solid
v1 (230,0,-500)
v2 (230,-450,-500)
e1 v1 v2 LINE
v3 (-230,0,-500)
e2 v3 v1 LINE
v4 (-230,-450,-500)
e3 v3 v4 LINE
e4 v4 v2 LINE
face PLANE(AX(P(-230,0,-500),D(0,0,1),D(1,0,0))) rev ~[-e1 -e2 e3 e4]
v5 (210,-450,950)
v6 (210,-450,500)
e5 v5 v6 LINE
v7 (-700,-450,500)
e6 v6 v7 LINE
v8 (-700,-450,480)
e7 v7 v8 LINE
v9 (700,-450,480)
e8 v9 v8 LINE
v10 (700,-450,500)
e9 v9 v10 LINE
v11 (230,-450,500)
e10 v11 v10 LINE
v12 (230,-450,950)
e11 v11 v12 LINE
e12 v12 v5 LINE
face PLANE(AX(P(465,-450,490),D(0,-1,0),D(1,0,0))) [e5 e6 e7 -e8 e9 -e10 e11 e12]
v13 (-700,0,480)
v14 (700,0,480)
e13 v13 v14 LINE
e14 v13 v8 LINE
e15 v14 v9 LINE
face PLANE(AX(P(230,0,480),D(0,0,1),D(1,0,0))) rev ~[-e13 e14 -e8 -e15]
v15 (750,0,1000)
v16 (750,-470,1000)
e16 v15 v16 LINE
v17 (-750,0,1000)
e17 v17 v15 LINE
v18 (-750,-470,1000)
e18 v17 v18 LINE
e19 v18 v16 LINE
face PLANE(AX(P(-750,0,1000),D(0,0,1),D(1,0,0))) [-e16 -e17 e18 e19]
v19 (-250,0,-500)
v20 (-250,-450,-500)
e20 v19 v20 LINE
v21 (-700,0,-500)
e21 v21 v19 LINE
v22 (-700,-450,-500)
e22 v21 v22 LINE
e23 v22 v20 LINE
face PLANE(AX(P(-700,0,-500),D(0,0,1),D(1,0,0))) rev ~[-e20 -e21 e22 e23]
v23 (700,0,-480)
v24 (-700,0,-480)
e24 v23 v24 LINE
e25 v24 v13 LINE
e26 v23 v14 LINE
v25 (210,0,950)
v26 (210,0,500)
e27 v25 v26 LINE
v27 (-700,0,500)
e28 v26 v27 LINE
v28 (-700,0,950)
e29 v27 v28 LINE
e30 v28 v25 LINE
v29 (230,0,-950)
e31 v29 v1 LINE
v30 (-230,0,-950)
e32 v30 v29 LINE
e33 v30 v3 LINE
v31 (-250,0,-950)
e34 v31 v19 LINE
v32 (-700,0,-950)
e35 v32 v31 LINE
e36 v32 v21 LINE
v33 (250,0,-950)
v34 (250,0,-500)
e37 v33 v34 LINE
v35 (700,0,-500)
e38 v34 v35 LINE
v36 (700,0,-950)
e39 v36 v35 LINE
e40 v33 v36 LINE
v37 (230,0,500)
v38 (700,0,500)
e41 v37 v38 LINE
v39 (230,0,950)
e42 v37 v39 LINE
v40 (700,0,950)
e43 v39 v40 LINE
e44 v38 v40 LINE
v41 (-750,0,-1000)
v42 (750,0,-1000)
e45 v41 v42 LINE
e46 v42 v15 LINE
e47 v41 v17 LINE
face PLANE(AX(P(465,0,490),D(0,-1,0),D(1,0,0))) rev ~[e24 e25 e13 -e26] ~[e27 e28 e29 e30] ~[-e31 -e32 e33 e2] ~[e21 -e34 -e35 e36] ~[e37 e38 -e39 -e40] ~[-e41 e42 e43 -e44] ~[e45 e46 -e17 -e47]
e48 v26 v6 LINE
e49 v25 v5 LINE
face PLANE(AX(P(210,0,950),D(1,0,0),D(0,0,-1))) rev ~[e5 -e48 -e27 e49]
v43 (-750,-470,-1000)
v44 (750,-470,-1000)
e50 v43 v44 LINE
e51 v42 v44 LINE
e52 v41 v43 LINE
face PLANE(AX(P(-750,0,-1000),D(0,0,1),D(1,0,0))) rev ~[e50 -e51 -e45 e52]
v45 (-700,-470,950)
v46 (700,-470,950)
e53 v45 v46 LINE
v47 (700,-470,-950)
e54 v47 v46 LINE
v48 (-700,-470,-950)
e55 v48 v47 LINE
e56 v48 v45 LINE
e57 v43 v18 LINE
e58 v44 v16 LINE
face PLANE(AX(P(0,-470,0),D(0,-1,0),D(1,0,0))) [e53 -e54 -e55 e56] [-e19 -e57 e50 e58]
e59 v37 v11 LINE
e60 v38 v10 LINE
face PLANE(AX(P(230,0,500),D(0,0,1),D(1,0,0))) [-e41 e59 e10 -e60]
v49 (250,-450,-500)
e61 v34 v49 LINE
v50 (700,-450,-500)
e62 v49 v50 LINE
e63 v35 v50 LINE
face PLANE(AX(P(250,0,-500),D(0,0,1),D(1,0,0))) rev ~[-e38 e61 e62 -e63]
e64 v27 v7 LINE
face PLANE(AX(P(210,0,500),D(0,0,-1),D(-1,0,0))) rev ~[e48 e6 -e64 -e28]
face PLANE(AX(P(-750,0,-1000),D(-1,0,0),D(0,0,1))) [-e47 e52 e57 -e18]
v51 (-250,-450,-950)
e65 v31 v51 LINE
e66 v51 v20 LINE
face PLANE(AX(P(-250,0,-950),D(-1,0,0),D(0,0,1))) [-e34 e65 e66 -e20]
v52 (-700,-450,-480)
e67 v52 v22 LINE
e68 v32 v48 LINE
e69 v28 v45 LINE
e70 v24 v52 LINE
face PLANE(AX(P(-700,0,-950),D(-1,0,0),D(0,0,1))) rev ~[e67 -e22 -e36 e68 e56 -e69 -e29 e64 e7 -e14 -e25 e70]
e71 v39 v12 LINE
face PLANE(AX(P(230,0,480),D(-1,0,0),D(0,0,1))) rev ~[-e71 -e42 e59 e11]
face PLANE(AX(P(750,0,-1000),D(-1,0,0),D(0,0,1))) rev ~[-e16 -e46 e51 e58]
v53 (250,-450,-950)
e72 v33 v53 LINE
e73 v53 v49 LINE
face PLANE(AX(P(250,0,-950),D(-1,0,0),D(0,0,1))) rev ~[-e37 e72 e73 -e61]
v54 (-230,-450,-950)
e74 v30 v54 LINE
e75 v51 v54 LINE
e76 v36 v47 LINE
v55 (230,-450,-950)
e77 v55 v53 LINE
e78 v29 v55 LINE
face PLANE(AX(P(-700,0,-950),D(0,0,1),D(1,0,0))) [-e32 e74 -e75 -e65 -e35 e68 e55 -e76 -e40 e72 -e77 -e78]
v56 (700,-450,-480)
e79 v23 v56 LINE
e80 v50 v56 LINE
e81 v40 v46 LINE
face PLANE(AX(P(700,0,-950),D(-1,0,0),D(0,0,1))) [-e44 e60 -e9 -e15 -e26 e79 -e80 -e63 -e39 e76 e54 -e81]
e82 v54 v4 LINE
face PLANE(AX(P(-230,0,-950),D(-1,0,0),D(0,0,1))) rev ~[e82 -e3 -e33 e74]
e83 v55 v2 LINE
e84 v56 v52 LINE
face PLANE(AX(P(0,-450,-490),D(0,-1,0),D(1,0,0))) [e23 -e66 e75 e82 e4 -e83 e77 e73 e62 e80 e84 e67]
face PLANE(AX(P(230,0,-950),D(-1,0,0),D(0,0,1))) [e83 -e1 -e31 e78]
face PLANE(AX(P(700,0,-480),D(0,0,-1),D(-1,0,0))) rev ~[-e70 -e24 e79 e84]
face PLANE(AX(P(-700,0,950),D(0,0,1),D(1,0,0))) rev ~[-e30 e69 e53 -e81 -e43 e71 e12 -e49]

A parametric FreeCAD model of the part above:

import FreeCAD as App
import Part
import Sketcher

V = App.Vector
Q = App.Units.Quantity

doc = App.newDocument("Part")
body = doc.addObject("PartDesign::Body", "Body")

sketch1 = body.newObject("Sketcher::SketchObject", "Sketch")
sketch1.AttachmentSupport = (doc.getObject("XZ_Plane"), [""])
sketch1.MapMode = "FlatFace"
sketch1.addGeometry([
    Part.LineSegment(V(-750, 1000, 0), V(-750, -1000, 0)),
    Part.LineSegment(V(-750, -1000, 0), V(750, -1000, 0)),
    Part.LineSegment(V(750, -1000, 0), V(750, 1000, 0)),
    Part.LineSegment(V(750, 1000, 0), V(-750, 1000, 0)),
    Part.LineSegment(V(700, -950, 0), V(-700, -950, 0)),
    Part.LineSegment(V(-700, -950, 0), V(-700, 950, 0)),
    Part.LineSegment(V(-700, 950, 0), V(700, 950, 0)),
    Part.LineSegment(V(700, 950, 0), V(700, -950, 0)),
], False)
sketch1.addConstraint([
    Sketcher.Constraint("Coincident", 0, 2, 1, 1),
    Sketcher.Constraint("Coincident", 1, 2, 2, 1),
    Sketcher.Constraint("Coincident", 2, 2, 3, 1),
    Sketcher.Constraint("Coincident", 3, 2, 0, 1),
    Sketcher.Constraint("Coincident", 4, 2, 5, 1),
    Sketcher.Constraint("Coincident", 5, 2, 6, 1),
    Sketcher.Constraint("Coincident", 6, 2, 7, 1),
    Sketcher.Constraint("Coincident", 7, 2, 4, 1),
    Sketcher.Constraint("Vertical", 0),
    Sketcher.Constraint("Horizontal", 1),
    Sketcher.Constraint("Vertical", 2),
    Sketcher.Constraint("Horizontal", 3),
    Sketcher.Constraint("Horizontal", 4),
    Sketcher.Constraint("Vertical", 5),
    Sketcher.Constraint("Horizontal", 6),
    Sketcher.Constraint("Vertical", 7),
    Sketcher.Constraint("Symmetric", 0, 2, 2, 2, -1, 1),
    Sketcher.Constraint("Symmetric", 4, 2, 6, 2, -1, 1),
    Sketcher.Constraint("DistanceX", 1, 1, 1, 2, Q("1500 mm")),
    Sketcher.Constraint("DistanceX", 4, 2, 4, 1, Q("1400 mm")),
    Sketcher.Constraint("DistanceY", 0, 2, 0, 1, Q("2000 mm")),
    Sketcher.Constraint("DistanceY", 5, 1, 5, 2, Q("1900 mm")),
])
pad1 = body.newObject("PartDesign::Pad", "Pad")
pad1.Profile = sketch1
pad1.Length = 470

sketch2 = body.newObject("Sketcher::SketchObject", "Sketch001")
sketch2.AttachmentSupport = (doc.getObject("XZ_Plane"), [""])
sketch2.MapMode = "FlatFace"
sketch2.addGeometry([
    Part.LineSegment(V(700, -500, 0), V(700, -480, 0)),
    Part.LineSegment(V(700, -480, 0), V(-700, -480, 0)),
    Part.LineSegment(V(-700, -480, 0), V(-700, -500, 0)),
    Part.LineSegment(V(-700, -500, 0), V(-250, -500, 0)),
    Part.LineSegment(V(-250, -500, 0), V(-250, -950, 0)),
    Part.LineSegment(V(-250, -950, 0), V(-230, -950, 0)),
    Part.LineSegment(V(-230, -950, 0), V(-230, -500, 0)),
    Part.LineSegment(V(-230, -500, 0), V(230, -500, 0)),
    Part.LineSegment(V(230, -500, 0), V(230, -950, 0)),
    Part.LineSegment(V(230, -950, 0), V(250, -950, 0)),
    Part.LineSegment(V(250, -950, 0), V(250, -500, 0)),
    Part.LineSegment(V(250, -500, 0), V(700, -500, 0)),
], False)
sketch2.addConstraint([
    Sketcher.Constraint("Coincident", 0, 2, 1, 1),
    Sketcher.Constraint("Coincident", 1, 2, 2, 1),
    Sketcher.Constraint("Coincident", 2, 2, 3, 1),
    Sketcher.Constraint("Coincident", 3, 2, 4, 1),
    Sketcher.Constraint("Coincident", 4, 2, 5, 1),
    Sketcher.Constraint("Coincident", 5, 2, 6, 1),
    Sketcher.Constraint("Coincident", 6, 2, 7, 1),
    Sketcher.Constraint("Coincident", 7, 2, 8, 1),
    Sketcher.Constraint("Coincident", 8, 2, 9, 1),
    Sketcher.Constraint("Coincident", 9, 2, 10, 1),
    Sketcher.Constraint("Coincident", 10, 2, 11, 1),
    Sketcher.Constraint("Coincident", 11, 2, 0, 1),
    Sketcher.Constraint("Vertical", 0),
    Sketcher.Constraint("Horizontal", 1),
    Sketcher.Constraint("Vertical", 2),
    Sketcher.Constraint("Horizontal", 3),
    Sketcher.Constraint("Vertical", 4),
    Sketcher.Constraint("Horizontal", 5),
    Sketcher.Constraint("Vertical", 6),
    Sketcher.Constraint("Horizontal", 7),
    Sketcher.Constraint("Vertical", 8),
    Sketcher.Constraint("Horizontal", 9),
    Sketcher.Constraint("Vertical", 10),
    Sketcher.Constraint("Horizontal", 11),
    Sketcher.Constraint("Symmetric", 5, 2, 8, 2, -2),
    Sketcher.Constraint("Symmetric", 3, 2, 10, 2, -2),
    Sketcher.Constraint("Horizontal", 3, 2, 6, 2),
    Sketcher.Constraint("Equal", 3, 11),
    Sketcher.Constraint("Equal", 9, 0),
    Sketcher.Constraint("Equal", 11, 4),
    Sketcher.Constraint("DistanceX", 1, 2, 1, 1, Q("1400 mm")),
    Sketcher.Constraint("DistanceX", 3, 1, 3, 2, Q("450 mm")),
    Sketcher.Constraint("DistanceX", 5, 1, 5, 2, Q("20 mm")),
    Sketcher.Constraint("DistanceY", 0, 2, -1, 1, Q("480 mm")),
])
pad2 = body.newObject("PartDesign::Pad", "Pad001")
pad2.Profile = sketch2
pad2.Length = 450

sketch3 = body.newObject("Sketcher::SketchObject", "Sketch002")
sketch3.AttachmentSupport = (doc.getObject("XZ_Plane"), [""])
sketch3.MapMode = "FlatFace"
sketch3.addGeometry([
    Part.LineSegment(V(230, 950, 0), V(210, 950, 0)),
    Part.LineSegment(V(210, 950, 0), V(210, 500, 0)),
    Part.LineSegment(V(210, 500, 0), V(-700, 500, 0)),
    Part.LineSegment(V(-700, 500, 0), V(-700, 480, 0)),
    Part.LineSegment(V(-700, 480, 0), V(230, 480, 0)),
    Part.LineSegment(V(230, 480, 0), V(230, 950, 0)),
], False)
sketch3.addConstraint([
    Sketcher.Constraint("Coincident", 0, 2, 1, 1),
    Sketcher.Constraint("Coincident", 1, 2, 2, 1),
    Sketcher.Constraint("Coincident", 2, 2, 3, 1),
    Sketcher.Constraint("Coincident", 3, 2, 4, 1),
    Sketcher.Constraint("Coincident", 4, 2, 5, 1),
    Sketcher.Constraint("Coincident", 5, 2, 0, 1),
    Sketcher.Constraint("Horizontal", 0),
    Sketcher.Constraint("Vertical", 1),
    Sketcher.Constraint("Horizontal", 2),
    Sketcher.Constraint("Vertical", 3),
    Sketcher.Constraint("Horizontal", 4),
    Sketcher.Constraint("Vertical", 5),
    Sketcher.Constraint("Equal", 0, 3),
    Sketcher.Constraint("DistanceX", 0, 2, 0, 1, Q("20 mm")),
    Sketcher.Constraint("DistanceX", 2, 2, 2, 1, Q("910 mm")),
    Sketcher.Constraint("DistanceY", 1, 2, 1, 1, Q("450 mm")),
    Sketcher.Constraint("DistanceX", -1, 1, 0, 2, Q("210 mm")),
    Sketcher.Constraint("DistanceY", -1, 1, 0, 2, Q("950 mm")),
])
pad3 = body.newObject("PartDesign::Pad", "Pad002")
pad3.Profile = sketch3
pad3.Length = 450

sketch4 = body.newObject("Sketcher::SketchObject", "Sketch003")
sketch4.AttachmentSupport = (doc.getObject("XZ_Plane"), [""])
sketch4.MapMode = "FlatFace"
sketch4.addGeometry([
    Part.LineSegment(V(230, 500, 0), V(230, 480, 0)),
    Part.LineSegment(V(230, 480, 0), V(700, 480, 0)),
    Part.LineSegment(V(700, 480, 0), V(700, 500, 0)),
    Part.LineSegment(V(700, 500, 0), V(230, 500, 0)),
], False)
sketch4.addConstraint([
    Sketcher.Constraint("Coincident", 0, 2, 1, 1),
    Sketcher.Constraint("Coincident", 1, 2, 2, 1),
    Sketcher.Constraint("Coincident", 2, 2, 3, 1),
    Sketcher.Constraint("Coincident", 3, 2, 0, 1),
    Sketcher.Constraint("Vertical", 0),
    Sketcher.Constraint("Horizontal", 1),
    Sketcher.Constraint("Vertical", 2),
    Sketcher.Constraint("Horizontal", 3),
    Sketcher.Constraint("DistanceX", 1, 1, 1, 2, Q("470 mm")),
    Sketcher.Constraint("DistanceY", 0, 2, 0, 1, Q("20 mm")),
    Sketcher.Constraint("DistanceX", -1, 1, 0, 2, Q("230 mm")),
    Sketcher.Constraint("DistanceY", -1, 1, 0, 2, Q("480 mm")),
])
pad4 = body.newObject("PartDesign::Pad", "Pad003")
pad4.Profile = sketch4
pad4.Length = 450

doc.recompute()
